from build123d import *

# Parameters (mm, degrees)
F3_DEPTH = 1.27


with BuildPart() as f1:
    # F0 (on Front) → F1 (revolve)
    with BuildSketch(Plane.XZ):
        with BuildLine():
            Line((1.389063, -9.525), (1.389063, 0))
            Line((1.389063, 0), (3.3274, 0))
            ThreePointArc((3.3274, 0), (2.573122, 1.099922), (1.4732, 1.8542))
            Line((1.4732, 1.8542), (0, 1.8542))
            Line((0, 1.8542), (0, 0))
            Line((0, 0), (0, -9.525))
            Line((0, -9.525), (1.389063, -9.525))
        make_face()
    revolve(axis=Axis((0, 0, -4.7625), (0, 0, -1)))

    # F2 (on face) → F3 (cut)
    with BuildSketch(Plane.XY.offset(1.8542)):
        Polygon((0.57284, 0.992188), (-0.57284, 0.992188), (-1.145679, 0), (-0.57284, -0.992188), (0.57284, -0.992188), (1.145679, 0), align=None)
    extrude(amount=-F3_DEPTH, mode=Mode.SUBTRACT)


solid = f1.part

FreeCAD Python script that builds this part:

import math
import FreeCAD as App
import Part
import Sketcher
Q = App.Units.Quantity


def add_polygon(sketch, points):
    """Adds a closed chain of lines whose ends are joined by coincident constraints."""
    first, n = sketch.GeometryCount, len(points)
    for a, b in zip(points, points[1:] + points[:1]):
        sketch.addGeometry(Part.LineSegment(App.Vector(*a, 0), App.Vector(*b, 0)), False)
    for i in range(n):
        sketch.addConstraint(Sketcher.Constraint("Coincident", first + i, 2, first + (i + 1) % n, 1))

doc = App.newDocument("Part")
body = doc.addObject("PartDesign::Body", "Body")

# Sketch on XZ plane
sketch1 = body.newObject("Sketcher::SketchObject", "Sketch")
sketch1.AttachmentSupport = (doc.getObject("XZ_Plane"), [""])
sketch1.MapMode = "FlatFace"
sketch1.addGeometry([
    Part.LineSegment(App.Vector(1.4, -9.5, 0), App.Vector(1.4, 0, 0)),  # 0
    Part.LineSegment(App.Vector(1.4, 0, 0), App.Vector(3.3, 0, 0)),  # 1
    Part.ArcOfCircle(Part.Circle(App.Vector(0, -1.5, 0), App.Vector(0, 0, 1), 3.6), math.radians(24), math.radians(66)),  # 2
    Part.LineSegment(App.Vector(1.5, 1.9, 0), App.Vector(0, 1.9, 0)),  # 3
    Part.LineSegment(App.Vector(0, 1.9, 0), App.Vector(0, -9.5, 0)),  # 4
    Part.LineSegment(App.Vector(0, -9.5, 0), App.Vector(1.4, -9.5, 0)),  # 5
], False)
sketch1.addConstraint([
    Sketcher.Constraint("Coincident", 0, 2, 1, 1),
    Sketcher.Constraint("Coincident", 1, 2, 2, 1),
    Sketcher.Constraint("Coincident", 2, 2, 3, 1),
    Sketcher.Constraint("Coincident", 3, 2, 4, 1),
    Sketcher.Constraint("Coincident", 4, 2, 5, 1),
    Sketcher.Constraint("Coincident", 5, 2, 0, 1),
    Sketcher.Constraint("Vertical", 0),
    Sketcher.Constraint("Horizontal", 1),
    Sketcher.Constraint("Horizontal", 3),
    Sketcher.Constraint("Vertical", 4),
    Sketcher.Constraint("Horizontal", 5),
    Sketcher.Constraint("PointOnObject", 0, 2, -1),
    Sketcher.Constraint("PointOnObject", 3, 2, -2),
    Sketcher.Constraint("DistanceX", 3, 2, 3, 1, Q("0.058 in")),
    Sketcher.Constraint("DistanceY", 0, 1, 0, 2, Q("0.375 in")),
    Sketcher.Constraint("DistanceY", 4, 2, 4, 1, Q("0.448 in")),
    Sketcher.Constraint("DistanceX", -1, 1, 1, 2, Q("0.131 in")),
    Sketcher.Constraint("Radius", 2, 3.638935),
    Sketcher.Constraint("DistanceX", 1, 1, 1, 2, 1.938337),
])
revolution = body.newObject("PartDesign::Revolution", "Revolution")
revolution.Profile = sketch1
revolution.ReferenceAxis = (sketch1, ["V_Axis"])
revolution.Angle = 360

# Sketch on XY plane
sketch2 = body.newObject("Sketcher::SketchObject", "Sketch001")
sketch2.AttachmentSupport = (doc.getObject("XY_Plane"), [""])
sketch2.MapMode = "FlatFace"
sketch2.AttachmentOffset = App.Placement(App.Vector(0, 0, 0.073 * 25.4), App.Rotation())
add_polygon(sketch2, [(0.6, 1), (-0.6, 1), (-1.1, 0), (-0.6, -1), (0.6, -1), (1.1, 0)])  # lines 0-5
sketch2.addConstraint([
    Sketcher.Constraint("Horizontal", 0),
    Sketcher.Constraint("Horizontal", 3),
    Sketcher.Constraint("Symmetric", 0, 2, 3, 2, -1, 1),
    Sketcher.Constraint("Symmetric", 1, 2, 4, 2, -1, 1),
    Sketcher.Constraint("PointOnObject", 1, 2, -1),
    Sketcher.Constraint("Parallel", 2, 5),
    Sketcher.Constraint("Vertical", 0, 2, 2, 2),
    Sketcher.Constraint("DistanceY", 2, 2, 0, 2, Q("0.078125 in")),
    Sketcher.Constraint("DistanceX", 0, 2, 0, 1, 1.14568),
    Sketcher.Constraint("Distance", 1, 1.14568),
])
pocket1 = body.newObject("PartDesign::Pocket", "Pocket")
pocket1.Profile = sketch2
pocket1.Length = Q("0.05 in")

doc.recompute()
